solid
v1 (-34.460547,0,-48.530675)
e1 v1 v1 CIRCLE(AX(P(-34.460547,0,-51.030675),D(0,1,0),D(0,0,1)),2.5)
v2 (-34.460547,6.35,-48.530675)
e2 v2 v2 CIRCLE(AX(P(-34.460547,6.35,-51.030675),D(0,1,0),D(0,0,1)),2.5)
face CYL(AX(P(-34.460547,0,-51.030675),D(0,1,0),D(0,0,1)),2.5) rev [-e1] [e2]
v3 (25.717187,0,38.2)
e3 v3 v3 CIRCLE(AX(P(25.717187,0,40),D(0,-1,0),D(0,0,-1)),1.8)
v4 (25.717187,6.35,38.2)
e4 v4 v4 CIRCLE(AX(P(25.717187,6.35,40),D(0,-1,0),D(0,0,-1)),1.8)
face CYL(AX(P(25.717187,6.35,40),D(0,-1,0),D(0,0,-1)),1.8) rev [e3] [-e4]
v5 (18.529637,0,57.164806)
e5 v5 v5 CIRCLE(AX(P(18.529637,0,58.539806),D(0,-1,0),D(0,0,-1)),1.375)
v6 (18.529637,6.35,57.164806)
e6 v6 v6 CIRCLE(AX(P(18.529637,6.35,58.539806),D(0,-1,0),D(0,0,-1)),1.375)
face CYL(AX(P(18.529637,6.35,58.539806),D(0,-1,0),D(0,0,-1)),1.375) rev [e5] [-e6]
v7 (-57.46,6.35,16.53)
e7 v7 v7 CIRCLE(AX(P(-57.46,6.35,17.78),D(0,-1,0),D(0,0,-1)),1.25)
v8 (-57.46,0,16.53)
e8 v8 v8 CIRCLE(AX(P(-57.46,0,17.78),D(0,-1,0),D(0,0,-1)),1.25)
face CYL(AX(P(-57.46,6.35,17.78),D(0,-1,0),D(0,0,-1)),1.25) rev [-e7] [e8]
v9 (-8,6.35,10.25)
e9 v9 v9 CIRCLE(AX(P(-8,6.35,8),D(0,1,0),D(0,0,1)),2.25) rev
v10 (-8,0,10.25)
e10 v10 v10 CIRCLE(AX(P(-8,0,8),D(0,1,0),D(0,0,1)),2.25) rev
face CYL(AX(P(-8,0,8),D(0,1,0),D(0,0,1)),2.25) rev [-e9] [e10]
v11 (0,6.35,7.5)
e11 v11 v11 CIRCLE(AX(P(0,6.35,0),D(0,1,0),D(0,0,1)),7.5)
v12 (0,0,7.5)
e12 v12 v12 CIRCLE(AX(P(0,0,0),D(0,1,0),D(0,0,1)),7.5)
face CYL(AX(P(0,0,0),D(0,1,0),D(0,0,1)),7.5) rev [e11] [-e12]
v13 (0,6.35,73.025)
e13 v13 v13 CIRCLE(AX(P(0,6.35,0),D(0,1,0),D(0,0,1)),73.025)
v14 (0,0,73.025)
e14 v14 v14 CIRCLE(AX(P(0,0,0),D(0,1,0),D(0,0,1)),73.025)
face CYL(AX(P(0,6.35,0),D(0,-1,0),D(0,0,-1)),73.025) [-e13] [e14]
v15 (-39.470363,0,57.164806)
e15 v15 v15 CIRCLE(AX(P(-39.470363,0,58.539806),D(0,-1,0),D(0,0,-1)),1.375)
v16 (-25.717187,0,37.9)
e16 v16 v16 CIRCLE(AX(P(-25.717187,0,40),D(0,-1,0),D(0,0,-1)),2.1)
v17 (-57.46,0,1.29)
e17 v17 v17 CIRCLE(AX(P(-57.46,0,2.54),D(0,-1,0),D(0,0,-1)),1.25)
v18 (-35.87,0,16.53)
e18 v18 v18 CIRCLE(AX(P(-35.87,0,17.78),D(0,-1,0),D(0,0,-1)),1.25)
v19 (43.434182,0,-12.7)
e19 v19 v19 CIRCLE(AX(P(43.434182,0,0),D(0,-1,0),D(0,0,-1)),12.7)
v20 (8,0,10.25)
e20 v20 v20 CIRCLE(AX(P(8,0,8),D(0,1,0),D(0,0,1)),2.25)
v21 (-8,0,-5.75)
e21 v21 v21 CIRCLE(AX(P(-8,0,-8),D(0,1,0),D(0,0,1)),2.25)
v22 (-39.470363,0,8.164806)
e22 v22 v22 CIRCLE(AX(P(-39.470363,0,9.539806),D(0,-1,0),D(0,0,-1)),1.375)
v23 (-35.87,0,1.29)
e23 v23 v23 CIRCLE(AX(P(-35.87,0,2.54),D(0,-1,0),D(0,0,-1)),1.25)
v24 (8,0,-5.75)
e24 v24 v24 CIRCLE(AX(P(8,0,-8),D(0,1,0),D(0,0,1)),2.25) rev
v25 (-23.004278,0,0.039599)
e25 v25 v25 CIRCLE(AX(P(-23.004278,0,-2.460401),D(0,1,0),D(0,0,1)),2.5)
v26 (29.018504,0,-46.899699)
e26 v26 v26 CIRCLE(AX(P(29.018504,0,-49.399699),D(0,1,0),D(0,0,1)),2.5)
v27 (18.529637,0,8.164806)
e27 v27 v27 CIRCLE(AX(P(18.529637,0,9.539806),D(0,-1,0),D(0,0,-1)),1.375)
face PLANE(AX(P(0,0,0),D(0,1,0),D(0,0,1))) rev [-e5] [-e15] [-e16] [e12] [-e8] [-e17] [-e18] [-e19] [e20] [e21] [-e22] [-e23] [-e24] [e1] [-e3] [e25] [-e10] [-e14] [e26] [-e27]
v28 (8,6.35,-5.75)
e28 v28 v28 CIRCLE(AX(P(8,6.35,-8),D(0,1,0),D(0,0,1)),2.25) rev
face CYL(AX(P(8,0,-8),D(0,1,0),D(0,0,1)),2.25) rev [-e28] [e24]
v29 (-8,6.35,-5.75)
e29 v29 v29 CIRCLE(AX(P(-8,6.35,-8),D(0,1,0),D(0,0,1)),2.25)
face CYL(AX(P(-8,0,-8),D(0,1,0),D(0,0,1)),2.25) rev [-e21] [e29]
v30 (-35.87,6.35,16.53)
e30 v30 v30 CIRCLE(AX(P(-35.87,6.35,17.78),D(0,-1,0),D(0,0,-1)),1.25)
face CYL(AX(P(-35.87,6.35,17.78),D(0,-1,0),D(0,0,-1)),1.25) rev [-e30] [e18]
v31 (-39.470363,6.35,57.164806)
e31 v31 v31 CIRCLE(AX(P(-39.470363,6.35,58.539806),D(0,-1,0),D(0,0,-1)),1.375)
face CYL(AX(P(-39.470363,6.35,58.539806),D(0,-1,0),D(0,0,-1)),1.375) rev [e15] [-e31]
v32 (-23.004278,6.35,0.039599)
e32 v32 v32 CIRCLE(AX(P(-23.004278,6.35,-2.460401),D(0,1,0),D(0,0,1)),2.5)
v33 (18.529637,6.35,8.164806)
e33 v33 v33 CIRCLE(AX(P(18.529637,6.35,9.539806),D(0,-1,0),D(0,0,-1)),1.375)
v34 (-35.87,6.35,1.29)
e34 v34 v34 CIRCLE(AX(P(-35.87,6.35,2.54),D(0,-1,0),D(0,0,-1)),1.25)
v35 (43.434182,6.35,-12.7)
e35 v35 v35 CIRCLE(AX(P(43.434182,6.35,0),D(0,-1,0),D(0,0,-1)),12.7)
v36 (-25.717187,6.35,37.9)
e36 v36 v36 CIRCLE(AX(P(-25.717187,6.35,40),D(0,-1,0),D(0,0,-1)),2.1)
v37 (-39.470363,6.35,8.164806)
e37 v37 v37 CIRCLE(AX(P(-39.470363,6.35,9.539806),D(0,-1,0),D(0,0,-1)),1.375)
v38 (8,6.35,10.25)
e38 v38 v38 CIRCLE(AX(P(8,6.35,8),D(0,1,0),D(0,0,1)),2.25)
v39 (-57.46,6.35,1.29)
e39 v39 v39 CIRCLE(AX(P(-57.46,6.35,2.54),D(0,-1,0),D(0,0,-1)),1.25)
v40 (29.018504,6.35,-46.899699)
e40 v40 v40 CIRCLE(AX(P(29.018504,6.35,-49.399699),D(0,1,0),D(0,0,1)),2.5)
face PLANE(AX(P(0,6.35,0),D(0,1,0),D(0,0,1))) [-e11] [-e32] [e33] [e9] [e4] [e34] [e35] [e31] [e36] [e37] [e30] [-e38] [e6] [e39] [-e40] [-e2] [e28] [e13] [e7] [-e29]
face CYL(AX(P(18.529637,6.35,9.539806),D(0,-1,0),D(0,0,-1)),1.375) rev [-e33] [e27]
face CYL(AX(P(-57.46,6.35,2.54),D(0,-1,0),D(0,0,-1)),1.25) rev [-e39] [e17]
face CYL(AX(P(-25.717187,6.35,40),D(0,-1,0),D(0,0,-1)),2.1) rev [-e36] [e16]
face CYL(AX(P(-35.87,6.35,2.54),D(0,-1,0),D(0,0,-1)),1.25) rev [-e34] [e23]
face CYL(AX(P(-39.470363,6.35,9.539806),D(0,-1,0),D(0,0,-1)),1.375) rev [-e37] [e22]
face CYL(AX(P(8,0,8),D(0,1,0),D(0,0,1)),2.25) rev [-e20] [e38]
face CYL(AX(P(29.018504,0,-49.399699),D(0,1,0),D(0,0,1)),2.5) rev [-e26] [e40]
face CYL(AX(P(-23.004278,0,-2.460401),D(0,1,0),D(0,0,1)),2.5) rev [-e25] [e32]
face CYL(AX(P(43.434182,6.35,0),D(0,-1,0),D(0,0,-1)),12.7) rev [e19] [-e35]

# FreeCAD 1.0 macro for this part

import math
import FreeCAD as App
import Part
import Sketcher

V = App.Vector
Q = App.Units.Quantity

doc = App.newDocument("Part")
params = doc.addObject("Spreadsheet::Sheet", "Params")
for row, (alias, value) in enumerate([
    ("sketch1_diameter", "146.05 mm"),
    ("pad1_length", "6.35 mm"),
    ("sketch2_diameter", "15 mm"),
    ("sketch3_diameter", "4.5 mm"),
    ("sketch4_diameter", "25.4 mm"),
    ("sketch5_diameter", "2.5 mm"),
    ("sketch5_radius", "2.1 mm"),
    ("sketch5_radius2", "1.8 mm"),
    ("sketch5_diameter2", "2.75 mm"),
    ("sketch6_diameter", "5 mm"),
    ("pocket5_length", "104.467984 mm"),
], start=1):
    params.set(f"A{row}", alias)
    params.set(f"B{row}", "=" + value)
    params.setAlias(f"B{row}", alias)

body = doc.addObject("PartDesign::Body", "Body")

# Sketch on XZ plane
sketch1 = body.newObject("Sketcher::SketchObject", "Sketch")
sketch1.AttachmentSupport = (doc.getObject("XZ_Plane"), [""])
sketch1.MapMode = "FlatFace"
sketch1.addGeometry(Part.Circle(V(0, 0, 0), V(0, 0, 1), 73.025), False)
sketch1.addConstraint([
    Sketcher.Constraint("Coincident", 0, 3, -1, 1),
    Sketcher.Constraint("Diameter", 0, Q("146.05 mm")),
])
sketch1.setExpression("Constraints[1]", "Params.sketch1_diameter")
pad1 = body.newObject("PartDesign::Pad", "Pad")
pad1.Profile = sketch1
pad1.setExpression("Length", "Params.pad1_length")
pad1.Reversed = True

# Sketch on XZ plane
sketch2 = body.newObject("Sketcher::SketchObject", "Sketch001")
sketch2.AttachmentSupport = (doc.getObject("XZ_Plane"), [""])
sketch2.MapMode = "FlatFace"
sketch2.AttachmentOffset = App.Placement(V(0, 0, -6.35), App.Rotation())
sketch2.addGeometry(Part.Circle(V(0, 0, 0), V(0, 0, 1), 7.5), False)
sketch2.addConstraint([
    Sketcher.Constraint("Coincident", 0, 3, -1, 1),
    Sketcher.Constraint("Diameter", 0, Q("15 mm")),
])
sketch2.setExpression("Constraints[1]", "Params.sketch2_diameter")
pocket1 = body.newObject("PartDesign::Pocket", "Pocket")
pocket1.Profile = sketch2
pocket1.Type = "ThroughAll"
pocket1.Reversed = True

# Sketch on XZ plane
sketch3 = body.newObject("Sketcher::SketchObject", "Sketch002")
sketch3.AttachmentSupport = (doc.getObject("XZ_Plane"), [""])
sketch3.MapMode = "FlatFace"
sketch3.AttachmentOffset = App.Placement(V(0, 0, -6.35), App.Rotation())
sketch3.addGeometry([
    Part.Circle(V(-8, -8, 0), V(0, 0, 1), 2.25),
    Part.Circle(V(8, -8, 0), V(0, 0, 1), 2.25),
    Part.Circle(V(8, 8, 0), V(0, 0, 1), 2.25),
    Part.Circle(V(-8, 8, 0), V(0, 0, 1), 2.25),
], False)
sketch3.addConstraint([
    Sketcher.Constraint("Equal", 0, 1),
    Sketcher.Constraint("Equal", 1, 2),
    Sketcher.Constraint("Equal", 2, 3),
    Sketcher.Constraint("Symmetric", 0, 3, 2, 3, -1, 1),
    Sketcher.Constraint("Symmetric", 1, 3, 3, 3, -1, 1),
    Sketcher.Constraint("Symmetric", 0, 3, 1, 3, -2),
    Sketcher.Constraint("Diameter", 0, Q("4.5 mm")),
    Sketcher.Constraint("DistanceX", 0, 3, -1, 1, Q("8 mm")),
    Sketcher.Constraint("DistanceY", 0, 3, -1, 1, Q("8 mm")),
])
sketch3.setExpression("Constraints[6]", "Params.sketch3_diameter")
pocket2 = body.newObject("PartDesign::Pocket", "Pocket001")
pocket2.Profile = sketch3
pocket2.Type = "ThroughAll"
pocket2.Reversed = True

# Sketch on XZ plane
sketch4 = body.newObject("Sketcher::SketchObject", "Sketch003")
sketch4.AttachmentSupport = (doc.getObject("XZ_Plane"), [""])
sketch4.MapMode = "FlatFace"
sketch4.addGeometry(Part.Circle(V(43.434182, 0, 0), V(0, 0, 1), 12.7), False)
sketch4.addConstraint([
    Sketcher.Constraint("PointOnObject", 0, 3, -1),
    Sketcher.Constraint("Diameter", 0, Q("25.4 mm")),
    Sketcher.Constraint("DistanceX", -1, 1, 0, 3, Q("43.434182 mm")),
])
sketch4.setExpression("Constraints[1]", "Params.sketch4_diameter")
pocket3 = body.newObject("PartDesign::Pocket", "Pocket002")
pocket3.Profile = sketch4
pocket3.Type = "ThroughAll"

# Sketch on XZ plane
sketch5 = body.newObject("Sketcher::SketchObject", "Sketch004")
sketch5.AttachmentSupport = (doc.getObject("XZ_Plane"), [""])
sketch5.MapMode = "FlatFace"
sketch5.addGeometry([
    Part.ArcOfCircle(Part.Circle(V(-25.717187, 40, 0), V(0, 0, 1), 2.1), math.radians(90), math.radians(270)),  # 0
    Part.ArcOfCircle(Part.Circle(V(-25.717187, 40, 0), V(0, 0, 1), 2.1), math.radians(-90), math.radians(0)),  # 1
    Part.ArcOfCircle(Part.Circle(V(-25.717187, 40, 0), V(0, 0, 1), 2.1), math.radians(0), math.radians(90)),  # 2
    Part.Circle(V(-57.46, 17.78, 0), V(0, 0, 1), 1.25),  # 3
    Part.Circle(V(-39.470363, 9.539806, 0), V(0, 0, 1), 1.375),  # 4
    Part.Circle(V(-35.87, 2.54, 0), V(0, 0, 1), 1.25),  # 5
    Part.Circle(V(-57.46, 2.54, 0), V(0, 0, 1), 1.25),  # 6
    Part.Circle(V(-39.470363, 58.539806, 0), V(0, 0, 1), 1.375),  # 7
    Part.Circle(V(18.529637, 58.539806, 0), V(0, 0, 1), 1.375),  # 8
    Part.ArcOfCircle(Part.Circle(V(25.717187, 40, 0), V(0, 0, 1), 1.8), math.radians(90), math.radians(270)),  # 9
    Part.ArcOfCircle(Part.Circle(V(25.717187, 40, 0), V(0, 0, 1), 1.8), math.radians(-90), math.radians(0)),  # 10
    Part.ArcOfCircle(Part.Circle(V(25.717187, 40, 0), V(0, 0, 1), 1.8), math.radians(0), math.radians(90)),  # 11
    Part.Circle(V(18.529637, 9.539806, 0), V(0, 0, 1), 1.375),  # 12
    Part.Circle(V(-35.87, 17.78, 0), V(0, 0, 1), 1.25),  # 13
], False)
sketch5.addConstraint([
    Sketcher.Constraint("Tangent", 0, 2, 1, 1),
    Sketcher.Constraint("Tangent", 1, 2, 2, 1),
    Sketcher.Constraint("Tangent", 2, 2, 0, 1),
    Sketcher.Constraint("Tangent", 9, 2, 10, 1),
    Sketcher.Constraint("Tangent", 10, 2, 11, 1),
    Sketcher.Constraint("Tangent", 11, 2, 9, 1),
    Sketcher.Constraint("Equal", 3, 5),
    Sketcher.Constraint("Equal", 5, 6),
    Sketcher.Constraint("Equal", 4, 7),
    Sketcher.Constraint("Equal", 7, 8),
    Sketcher.Constraint("Equal", 8, 12),
    Sketcher.Constraint("Equal", 6, 13),
    Sketcher.Constraint("Symmetric", 0, 3, 9, 3, -2),
    Sketcher.Constraint("Horizontal", 5, 3, 6, 3),
    Sketcher.Constraint("Horizontal", 7, 3, 8, 3),
    Sketcher.Constraint("Horizontal", 4, 3, 12, 3),
    Sketcher.Constraint("Horizontal", 3, 3, 13, 3),
    Sketcher.Constraint("Horizontal", 11, 3, 1, 2),
    Sketcher.Constraint("Horizontal", 1, 2, 10, 2),
    Sketcher.Constraint("Vertical", 3, 3, 6, 3),
    Sketcher.Constraint("Vertical", 4, 3, 7, 3),
    Sketcher.Constraint("Vertical", 8, 3, 12, 3),
    Sketcher.Constraint("Vertical", 5, 3, 13, 3),
    Sketcher.Constraint("Vertical", 2, 3, 0, 2),
    Sketcher.Constraint("Vertical", 0, 2, 2, 2),
    Sketcher.Constraint("Vertical", 11, 3, 9, 2),
    Sketcher.Constraint("Vertical", 9, 2, 11, 2),
    Sketcher.Constraint("Diameter", 3, Q("2.5 mm")),
    Sketcher.Constraint("Radius", 0, Q("2.1 mm")),
    Sketcher.Constraint("Radius", 9, Q("1.8 mm")),
    Sketcher.Constraint("Diameter", 4, Q("2.75 mm")),
    Sketcher.Constraint("DistanceY", -1, 1, 0, 3, Q("40 mm")),
    Sketcher.Constraint("DistanceY", 4, 3, 7, 3, Q("49 mm")),
    Sketcher.Constraint("DistanceX", 7, 3, 8, 3, Q("58 mm")),
    Sketcher.Constraint("DistanceX", 3, 3, -1, 1, Q("57.46 mm")),
    Sketcher.Constraint("DistanceY", -1, 1, 3, 3, Q("17.78 mm")),
    Sketcher.Constraint("DistanceX", 5, 3, -1, 1, Q("35.87 mm")),
    Sketcher.Constraint("DistanceY", -1, 1, 5, 3, Q("2.54 mm")),
    Sketcher.Constraint("DistanceX", 8, 3, 9, 3, Q("7.187549 mm")),
    Sketcher.Constraint("DistanceX", 0, 3, -1, 1, Q("25.717187 mm")),
    Sketcher.Constraint("DistanceY", -1, 1, 4, 3, Q("9.539806 mm")),
])
sketch5.setExpression("Constraints[27]", "Params.sketch5_diameter")
sketch5.setExpression("Constraints[28]", "Params.sketch5_radius")
sketch5.setExpression("Constraints[29]", "Params.sketch5_radius2")
sketch5.setExpression("Constraints[30]", "Params.sketch5_diameter2")
pocket4 = body.newObject("PartDesign::Pocket", "Pocket003")
pocket4.Profile = sketch5
pocket4.Type = "ThroughAll"

# Sketch on XZ plane
sketch6 = body.newObject("Sketcher::SketchObject", "Sketch005")
sketch6.AttachmentSupport = (doc.getObject("XZ_Plane"), [""])
sketch6.MapMode = "FlatFace"
sketch6.AttachmentOffset = App.Placement(V(0, 0, -6.35), App.Rotation())
sketch6.addGeometry([
    Part.Circle(V(-34.460547, -51.030675, 0), V(0, 0, 1), 2.5),
    Part.Circle(V(29.018504, -49.399699, 0), V(0, 0, 1), 2.5),
    Part.Circle(V(-23.004278, -2.460401, 0), V(0, 0, 1), 2.5),
], False)
sketch6.addConstraint([
    Sketcher.Constraint("Equal", 0, 1),
    Sketcher.Constraint("Equal", 1, 2),
    Sketcher.Constraint("Diameter", 0, Q("5 mm")),
    Sketcher.Constraint("DistanceY", 1, 3, -1, 1, Q("49.399699 mm")),
    Sketcher.Constraint("DistanceY", 2, 3, -1, 1, Q("2.460401 mm")),
    Sketcher.Constraint("DistanceX", 2, 3, -1, 1, Q("23.004278 mm")),
    Sketcher.Constraint("DistanceX", 0, 3, 1, 3, Q("63.479051 mm")),
    Sketcher.Constraint("DistanceX", 0, 3, 2, 3, Q("11.456268 mm")),
    Sketcher.Constraint("DistanceY", 0, 3, -1, 1, Q("51.030675 mm")),
])
sketch6.setExpression("Constraints[2]", "Params.sketch6_diameter")
pocket5 = body.newObject("PartDesign::Pocket", "Pocket004")
pocket5.Profile = sketch6
pocket5.setExpression("Length", "Params.pocket5_length")
pocket5.Reversed = True

doc.recompute()
